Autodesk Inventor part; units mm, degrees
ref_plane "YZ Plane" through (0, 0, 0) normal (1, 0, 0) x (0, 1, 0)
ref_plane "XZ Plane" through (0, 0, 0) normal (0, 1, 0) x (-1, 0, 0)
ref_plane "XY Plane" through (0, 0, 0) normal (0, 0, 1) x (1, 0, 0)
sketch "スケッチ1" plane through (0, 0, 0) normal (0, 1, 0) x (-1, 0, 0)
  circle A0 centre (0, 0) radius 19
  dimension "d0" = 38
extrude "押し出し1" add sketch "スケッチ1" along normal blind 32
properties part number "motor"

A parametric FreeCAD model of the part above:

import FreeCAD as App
import Part
import Sketcher

V = App.Vector

doc = App.newDocument("Part")
params = doc.addObject("Spreadsheet::Sheet", "Params")
for row, (alias, value) in enumerate([
    ("sketch1_diameter", "38 mm"),
    ("pad1_length", "32 mm"),
], start=1):
    params.set(f"A{row}", alias)
    params.set(f"B{row}", "=" + value)
    params.setAlias(f"B{row}", alias)

body = doc.addObject("PartDesign::Body", "Body")

# Sketch on XZ plane
sketch1 = doc.addObject("Sketcher::SketchObject", "Sketch")
body.addObject(sketch1)
sketch1.AttachmentSupport = (doc.XZ_Plane, [""])
sketch1.MapMode = "FlatFace"
sketch1.addGeometry(Part.Circle(V(0, 0, 0), V(0, 0, 1), 19), False)
sketch1.addConstraint([
    Sketcher.Constraint("Coincident", 0, 3, -1, 1),
    Sketcher.Constraint("Diameter", 0, 38.0),
])
sketch1.setExpression("Constraints[1]", "Params.sketch1_diameter")
pad1 = doc.addObject("PartDesign::Pad", "Pad")
body.addObject(pad1)
pad1.Profile = sketch1
pad1.setExpression("Length", "Params.pad1_length")
pad1.Reversed = True

doc.recompute()
